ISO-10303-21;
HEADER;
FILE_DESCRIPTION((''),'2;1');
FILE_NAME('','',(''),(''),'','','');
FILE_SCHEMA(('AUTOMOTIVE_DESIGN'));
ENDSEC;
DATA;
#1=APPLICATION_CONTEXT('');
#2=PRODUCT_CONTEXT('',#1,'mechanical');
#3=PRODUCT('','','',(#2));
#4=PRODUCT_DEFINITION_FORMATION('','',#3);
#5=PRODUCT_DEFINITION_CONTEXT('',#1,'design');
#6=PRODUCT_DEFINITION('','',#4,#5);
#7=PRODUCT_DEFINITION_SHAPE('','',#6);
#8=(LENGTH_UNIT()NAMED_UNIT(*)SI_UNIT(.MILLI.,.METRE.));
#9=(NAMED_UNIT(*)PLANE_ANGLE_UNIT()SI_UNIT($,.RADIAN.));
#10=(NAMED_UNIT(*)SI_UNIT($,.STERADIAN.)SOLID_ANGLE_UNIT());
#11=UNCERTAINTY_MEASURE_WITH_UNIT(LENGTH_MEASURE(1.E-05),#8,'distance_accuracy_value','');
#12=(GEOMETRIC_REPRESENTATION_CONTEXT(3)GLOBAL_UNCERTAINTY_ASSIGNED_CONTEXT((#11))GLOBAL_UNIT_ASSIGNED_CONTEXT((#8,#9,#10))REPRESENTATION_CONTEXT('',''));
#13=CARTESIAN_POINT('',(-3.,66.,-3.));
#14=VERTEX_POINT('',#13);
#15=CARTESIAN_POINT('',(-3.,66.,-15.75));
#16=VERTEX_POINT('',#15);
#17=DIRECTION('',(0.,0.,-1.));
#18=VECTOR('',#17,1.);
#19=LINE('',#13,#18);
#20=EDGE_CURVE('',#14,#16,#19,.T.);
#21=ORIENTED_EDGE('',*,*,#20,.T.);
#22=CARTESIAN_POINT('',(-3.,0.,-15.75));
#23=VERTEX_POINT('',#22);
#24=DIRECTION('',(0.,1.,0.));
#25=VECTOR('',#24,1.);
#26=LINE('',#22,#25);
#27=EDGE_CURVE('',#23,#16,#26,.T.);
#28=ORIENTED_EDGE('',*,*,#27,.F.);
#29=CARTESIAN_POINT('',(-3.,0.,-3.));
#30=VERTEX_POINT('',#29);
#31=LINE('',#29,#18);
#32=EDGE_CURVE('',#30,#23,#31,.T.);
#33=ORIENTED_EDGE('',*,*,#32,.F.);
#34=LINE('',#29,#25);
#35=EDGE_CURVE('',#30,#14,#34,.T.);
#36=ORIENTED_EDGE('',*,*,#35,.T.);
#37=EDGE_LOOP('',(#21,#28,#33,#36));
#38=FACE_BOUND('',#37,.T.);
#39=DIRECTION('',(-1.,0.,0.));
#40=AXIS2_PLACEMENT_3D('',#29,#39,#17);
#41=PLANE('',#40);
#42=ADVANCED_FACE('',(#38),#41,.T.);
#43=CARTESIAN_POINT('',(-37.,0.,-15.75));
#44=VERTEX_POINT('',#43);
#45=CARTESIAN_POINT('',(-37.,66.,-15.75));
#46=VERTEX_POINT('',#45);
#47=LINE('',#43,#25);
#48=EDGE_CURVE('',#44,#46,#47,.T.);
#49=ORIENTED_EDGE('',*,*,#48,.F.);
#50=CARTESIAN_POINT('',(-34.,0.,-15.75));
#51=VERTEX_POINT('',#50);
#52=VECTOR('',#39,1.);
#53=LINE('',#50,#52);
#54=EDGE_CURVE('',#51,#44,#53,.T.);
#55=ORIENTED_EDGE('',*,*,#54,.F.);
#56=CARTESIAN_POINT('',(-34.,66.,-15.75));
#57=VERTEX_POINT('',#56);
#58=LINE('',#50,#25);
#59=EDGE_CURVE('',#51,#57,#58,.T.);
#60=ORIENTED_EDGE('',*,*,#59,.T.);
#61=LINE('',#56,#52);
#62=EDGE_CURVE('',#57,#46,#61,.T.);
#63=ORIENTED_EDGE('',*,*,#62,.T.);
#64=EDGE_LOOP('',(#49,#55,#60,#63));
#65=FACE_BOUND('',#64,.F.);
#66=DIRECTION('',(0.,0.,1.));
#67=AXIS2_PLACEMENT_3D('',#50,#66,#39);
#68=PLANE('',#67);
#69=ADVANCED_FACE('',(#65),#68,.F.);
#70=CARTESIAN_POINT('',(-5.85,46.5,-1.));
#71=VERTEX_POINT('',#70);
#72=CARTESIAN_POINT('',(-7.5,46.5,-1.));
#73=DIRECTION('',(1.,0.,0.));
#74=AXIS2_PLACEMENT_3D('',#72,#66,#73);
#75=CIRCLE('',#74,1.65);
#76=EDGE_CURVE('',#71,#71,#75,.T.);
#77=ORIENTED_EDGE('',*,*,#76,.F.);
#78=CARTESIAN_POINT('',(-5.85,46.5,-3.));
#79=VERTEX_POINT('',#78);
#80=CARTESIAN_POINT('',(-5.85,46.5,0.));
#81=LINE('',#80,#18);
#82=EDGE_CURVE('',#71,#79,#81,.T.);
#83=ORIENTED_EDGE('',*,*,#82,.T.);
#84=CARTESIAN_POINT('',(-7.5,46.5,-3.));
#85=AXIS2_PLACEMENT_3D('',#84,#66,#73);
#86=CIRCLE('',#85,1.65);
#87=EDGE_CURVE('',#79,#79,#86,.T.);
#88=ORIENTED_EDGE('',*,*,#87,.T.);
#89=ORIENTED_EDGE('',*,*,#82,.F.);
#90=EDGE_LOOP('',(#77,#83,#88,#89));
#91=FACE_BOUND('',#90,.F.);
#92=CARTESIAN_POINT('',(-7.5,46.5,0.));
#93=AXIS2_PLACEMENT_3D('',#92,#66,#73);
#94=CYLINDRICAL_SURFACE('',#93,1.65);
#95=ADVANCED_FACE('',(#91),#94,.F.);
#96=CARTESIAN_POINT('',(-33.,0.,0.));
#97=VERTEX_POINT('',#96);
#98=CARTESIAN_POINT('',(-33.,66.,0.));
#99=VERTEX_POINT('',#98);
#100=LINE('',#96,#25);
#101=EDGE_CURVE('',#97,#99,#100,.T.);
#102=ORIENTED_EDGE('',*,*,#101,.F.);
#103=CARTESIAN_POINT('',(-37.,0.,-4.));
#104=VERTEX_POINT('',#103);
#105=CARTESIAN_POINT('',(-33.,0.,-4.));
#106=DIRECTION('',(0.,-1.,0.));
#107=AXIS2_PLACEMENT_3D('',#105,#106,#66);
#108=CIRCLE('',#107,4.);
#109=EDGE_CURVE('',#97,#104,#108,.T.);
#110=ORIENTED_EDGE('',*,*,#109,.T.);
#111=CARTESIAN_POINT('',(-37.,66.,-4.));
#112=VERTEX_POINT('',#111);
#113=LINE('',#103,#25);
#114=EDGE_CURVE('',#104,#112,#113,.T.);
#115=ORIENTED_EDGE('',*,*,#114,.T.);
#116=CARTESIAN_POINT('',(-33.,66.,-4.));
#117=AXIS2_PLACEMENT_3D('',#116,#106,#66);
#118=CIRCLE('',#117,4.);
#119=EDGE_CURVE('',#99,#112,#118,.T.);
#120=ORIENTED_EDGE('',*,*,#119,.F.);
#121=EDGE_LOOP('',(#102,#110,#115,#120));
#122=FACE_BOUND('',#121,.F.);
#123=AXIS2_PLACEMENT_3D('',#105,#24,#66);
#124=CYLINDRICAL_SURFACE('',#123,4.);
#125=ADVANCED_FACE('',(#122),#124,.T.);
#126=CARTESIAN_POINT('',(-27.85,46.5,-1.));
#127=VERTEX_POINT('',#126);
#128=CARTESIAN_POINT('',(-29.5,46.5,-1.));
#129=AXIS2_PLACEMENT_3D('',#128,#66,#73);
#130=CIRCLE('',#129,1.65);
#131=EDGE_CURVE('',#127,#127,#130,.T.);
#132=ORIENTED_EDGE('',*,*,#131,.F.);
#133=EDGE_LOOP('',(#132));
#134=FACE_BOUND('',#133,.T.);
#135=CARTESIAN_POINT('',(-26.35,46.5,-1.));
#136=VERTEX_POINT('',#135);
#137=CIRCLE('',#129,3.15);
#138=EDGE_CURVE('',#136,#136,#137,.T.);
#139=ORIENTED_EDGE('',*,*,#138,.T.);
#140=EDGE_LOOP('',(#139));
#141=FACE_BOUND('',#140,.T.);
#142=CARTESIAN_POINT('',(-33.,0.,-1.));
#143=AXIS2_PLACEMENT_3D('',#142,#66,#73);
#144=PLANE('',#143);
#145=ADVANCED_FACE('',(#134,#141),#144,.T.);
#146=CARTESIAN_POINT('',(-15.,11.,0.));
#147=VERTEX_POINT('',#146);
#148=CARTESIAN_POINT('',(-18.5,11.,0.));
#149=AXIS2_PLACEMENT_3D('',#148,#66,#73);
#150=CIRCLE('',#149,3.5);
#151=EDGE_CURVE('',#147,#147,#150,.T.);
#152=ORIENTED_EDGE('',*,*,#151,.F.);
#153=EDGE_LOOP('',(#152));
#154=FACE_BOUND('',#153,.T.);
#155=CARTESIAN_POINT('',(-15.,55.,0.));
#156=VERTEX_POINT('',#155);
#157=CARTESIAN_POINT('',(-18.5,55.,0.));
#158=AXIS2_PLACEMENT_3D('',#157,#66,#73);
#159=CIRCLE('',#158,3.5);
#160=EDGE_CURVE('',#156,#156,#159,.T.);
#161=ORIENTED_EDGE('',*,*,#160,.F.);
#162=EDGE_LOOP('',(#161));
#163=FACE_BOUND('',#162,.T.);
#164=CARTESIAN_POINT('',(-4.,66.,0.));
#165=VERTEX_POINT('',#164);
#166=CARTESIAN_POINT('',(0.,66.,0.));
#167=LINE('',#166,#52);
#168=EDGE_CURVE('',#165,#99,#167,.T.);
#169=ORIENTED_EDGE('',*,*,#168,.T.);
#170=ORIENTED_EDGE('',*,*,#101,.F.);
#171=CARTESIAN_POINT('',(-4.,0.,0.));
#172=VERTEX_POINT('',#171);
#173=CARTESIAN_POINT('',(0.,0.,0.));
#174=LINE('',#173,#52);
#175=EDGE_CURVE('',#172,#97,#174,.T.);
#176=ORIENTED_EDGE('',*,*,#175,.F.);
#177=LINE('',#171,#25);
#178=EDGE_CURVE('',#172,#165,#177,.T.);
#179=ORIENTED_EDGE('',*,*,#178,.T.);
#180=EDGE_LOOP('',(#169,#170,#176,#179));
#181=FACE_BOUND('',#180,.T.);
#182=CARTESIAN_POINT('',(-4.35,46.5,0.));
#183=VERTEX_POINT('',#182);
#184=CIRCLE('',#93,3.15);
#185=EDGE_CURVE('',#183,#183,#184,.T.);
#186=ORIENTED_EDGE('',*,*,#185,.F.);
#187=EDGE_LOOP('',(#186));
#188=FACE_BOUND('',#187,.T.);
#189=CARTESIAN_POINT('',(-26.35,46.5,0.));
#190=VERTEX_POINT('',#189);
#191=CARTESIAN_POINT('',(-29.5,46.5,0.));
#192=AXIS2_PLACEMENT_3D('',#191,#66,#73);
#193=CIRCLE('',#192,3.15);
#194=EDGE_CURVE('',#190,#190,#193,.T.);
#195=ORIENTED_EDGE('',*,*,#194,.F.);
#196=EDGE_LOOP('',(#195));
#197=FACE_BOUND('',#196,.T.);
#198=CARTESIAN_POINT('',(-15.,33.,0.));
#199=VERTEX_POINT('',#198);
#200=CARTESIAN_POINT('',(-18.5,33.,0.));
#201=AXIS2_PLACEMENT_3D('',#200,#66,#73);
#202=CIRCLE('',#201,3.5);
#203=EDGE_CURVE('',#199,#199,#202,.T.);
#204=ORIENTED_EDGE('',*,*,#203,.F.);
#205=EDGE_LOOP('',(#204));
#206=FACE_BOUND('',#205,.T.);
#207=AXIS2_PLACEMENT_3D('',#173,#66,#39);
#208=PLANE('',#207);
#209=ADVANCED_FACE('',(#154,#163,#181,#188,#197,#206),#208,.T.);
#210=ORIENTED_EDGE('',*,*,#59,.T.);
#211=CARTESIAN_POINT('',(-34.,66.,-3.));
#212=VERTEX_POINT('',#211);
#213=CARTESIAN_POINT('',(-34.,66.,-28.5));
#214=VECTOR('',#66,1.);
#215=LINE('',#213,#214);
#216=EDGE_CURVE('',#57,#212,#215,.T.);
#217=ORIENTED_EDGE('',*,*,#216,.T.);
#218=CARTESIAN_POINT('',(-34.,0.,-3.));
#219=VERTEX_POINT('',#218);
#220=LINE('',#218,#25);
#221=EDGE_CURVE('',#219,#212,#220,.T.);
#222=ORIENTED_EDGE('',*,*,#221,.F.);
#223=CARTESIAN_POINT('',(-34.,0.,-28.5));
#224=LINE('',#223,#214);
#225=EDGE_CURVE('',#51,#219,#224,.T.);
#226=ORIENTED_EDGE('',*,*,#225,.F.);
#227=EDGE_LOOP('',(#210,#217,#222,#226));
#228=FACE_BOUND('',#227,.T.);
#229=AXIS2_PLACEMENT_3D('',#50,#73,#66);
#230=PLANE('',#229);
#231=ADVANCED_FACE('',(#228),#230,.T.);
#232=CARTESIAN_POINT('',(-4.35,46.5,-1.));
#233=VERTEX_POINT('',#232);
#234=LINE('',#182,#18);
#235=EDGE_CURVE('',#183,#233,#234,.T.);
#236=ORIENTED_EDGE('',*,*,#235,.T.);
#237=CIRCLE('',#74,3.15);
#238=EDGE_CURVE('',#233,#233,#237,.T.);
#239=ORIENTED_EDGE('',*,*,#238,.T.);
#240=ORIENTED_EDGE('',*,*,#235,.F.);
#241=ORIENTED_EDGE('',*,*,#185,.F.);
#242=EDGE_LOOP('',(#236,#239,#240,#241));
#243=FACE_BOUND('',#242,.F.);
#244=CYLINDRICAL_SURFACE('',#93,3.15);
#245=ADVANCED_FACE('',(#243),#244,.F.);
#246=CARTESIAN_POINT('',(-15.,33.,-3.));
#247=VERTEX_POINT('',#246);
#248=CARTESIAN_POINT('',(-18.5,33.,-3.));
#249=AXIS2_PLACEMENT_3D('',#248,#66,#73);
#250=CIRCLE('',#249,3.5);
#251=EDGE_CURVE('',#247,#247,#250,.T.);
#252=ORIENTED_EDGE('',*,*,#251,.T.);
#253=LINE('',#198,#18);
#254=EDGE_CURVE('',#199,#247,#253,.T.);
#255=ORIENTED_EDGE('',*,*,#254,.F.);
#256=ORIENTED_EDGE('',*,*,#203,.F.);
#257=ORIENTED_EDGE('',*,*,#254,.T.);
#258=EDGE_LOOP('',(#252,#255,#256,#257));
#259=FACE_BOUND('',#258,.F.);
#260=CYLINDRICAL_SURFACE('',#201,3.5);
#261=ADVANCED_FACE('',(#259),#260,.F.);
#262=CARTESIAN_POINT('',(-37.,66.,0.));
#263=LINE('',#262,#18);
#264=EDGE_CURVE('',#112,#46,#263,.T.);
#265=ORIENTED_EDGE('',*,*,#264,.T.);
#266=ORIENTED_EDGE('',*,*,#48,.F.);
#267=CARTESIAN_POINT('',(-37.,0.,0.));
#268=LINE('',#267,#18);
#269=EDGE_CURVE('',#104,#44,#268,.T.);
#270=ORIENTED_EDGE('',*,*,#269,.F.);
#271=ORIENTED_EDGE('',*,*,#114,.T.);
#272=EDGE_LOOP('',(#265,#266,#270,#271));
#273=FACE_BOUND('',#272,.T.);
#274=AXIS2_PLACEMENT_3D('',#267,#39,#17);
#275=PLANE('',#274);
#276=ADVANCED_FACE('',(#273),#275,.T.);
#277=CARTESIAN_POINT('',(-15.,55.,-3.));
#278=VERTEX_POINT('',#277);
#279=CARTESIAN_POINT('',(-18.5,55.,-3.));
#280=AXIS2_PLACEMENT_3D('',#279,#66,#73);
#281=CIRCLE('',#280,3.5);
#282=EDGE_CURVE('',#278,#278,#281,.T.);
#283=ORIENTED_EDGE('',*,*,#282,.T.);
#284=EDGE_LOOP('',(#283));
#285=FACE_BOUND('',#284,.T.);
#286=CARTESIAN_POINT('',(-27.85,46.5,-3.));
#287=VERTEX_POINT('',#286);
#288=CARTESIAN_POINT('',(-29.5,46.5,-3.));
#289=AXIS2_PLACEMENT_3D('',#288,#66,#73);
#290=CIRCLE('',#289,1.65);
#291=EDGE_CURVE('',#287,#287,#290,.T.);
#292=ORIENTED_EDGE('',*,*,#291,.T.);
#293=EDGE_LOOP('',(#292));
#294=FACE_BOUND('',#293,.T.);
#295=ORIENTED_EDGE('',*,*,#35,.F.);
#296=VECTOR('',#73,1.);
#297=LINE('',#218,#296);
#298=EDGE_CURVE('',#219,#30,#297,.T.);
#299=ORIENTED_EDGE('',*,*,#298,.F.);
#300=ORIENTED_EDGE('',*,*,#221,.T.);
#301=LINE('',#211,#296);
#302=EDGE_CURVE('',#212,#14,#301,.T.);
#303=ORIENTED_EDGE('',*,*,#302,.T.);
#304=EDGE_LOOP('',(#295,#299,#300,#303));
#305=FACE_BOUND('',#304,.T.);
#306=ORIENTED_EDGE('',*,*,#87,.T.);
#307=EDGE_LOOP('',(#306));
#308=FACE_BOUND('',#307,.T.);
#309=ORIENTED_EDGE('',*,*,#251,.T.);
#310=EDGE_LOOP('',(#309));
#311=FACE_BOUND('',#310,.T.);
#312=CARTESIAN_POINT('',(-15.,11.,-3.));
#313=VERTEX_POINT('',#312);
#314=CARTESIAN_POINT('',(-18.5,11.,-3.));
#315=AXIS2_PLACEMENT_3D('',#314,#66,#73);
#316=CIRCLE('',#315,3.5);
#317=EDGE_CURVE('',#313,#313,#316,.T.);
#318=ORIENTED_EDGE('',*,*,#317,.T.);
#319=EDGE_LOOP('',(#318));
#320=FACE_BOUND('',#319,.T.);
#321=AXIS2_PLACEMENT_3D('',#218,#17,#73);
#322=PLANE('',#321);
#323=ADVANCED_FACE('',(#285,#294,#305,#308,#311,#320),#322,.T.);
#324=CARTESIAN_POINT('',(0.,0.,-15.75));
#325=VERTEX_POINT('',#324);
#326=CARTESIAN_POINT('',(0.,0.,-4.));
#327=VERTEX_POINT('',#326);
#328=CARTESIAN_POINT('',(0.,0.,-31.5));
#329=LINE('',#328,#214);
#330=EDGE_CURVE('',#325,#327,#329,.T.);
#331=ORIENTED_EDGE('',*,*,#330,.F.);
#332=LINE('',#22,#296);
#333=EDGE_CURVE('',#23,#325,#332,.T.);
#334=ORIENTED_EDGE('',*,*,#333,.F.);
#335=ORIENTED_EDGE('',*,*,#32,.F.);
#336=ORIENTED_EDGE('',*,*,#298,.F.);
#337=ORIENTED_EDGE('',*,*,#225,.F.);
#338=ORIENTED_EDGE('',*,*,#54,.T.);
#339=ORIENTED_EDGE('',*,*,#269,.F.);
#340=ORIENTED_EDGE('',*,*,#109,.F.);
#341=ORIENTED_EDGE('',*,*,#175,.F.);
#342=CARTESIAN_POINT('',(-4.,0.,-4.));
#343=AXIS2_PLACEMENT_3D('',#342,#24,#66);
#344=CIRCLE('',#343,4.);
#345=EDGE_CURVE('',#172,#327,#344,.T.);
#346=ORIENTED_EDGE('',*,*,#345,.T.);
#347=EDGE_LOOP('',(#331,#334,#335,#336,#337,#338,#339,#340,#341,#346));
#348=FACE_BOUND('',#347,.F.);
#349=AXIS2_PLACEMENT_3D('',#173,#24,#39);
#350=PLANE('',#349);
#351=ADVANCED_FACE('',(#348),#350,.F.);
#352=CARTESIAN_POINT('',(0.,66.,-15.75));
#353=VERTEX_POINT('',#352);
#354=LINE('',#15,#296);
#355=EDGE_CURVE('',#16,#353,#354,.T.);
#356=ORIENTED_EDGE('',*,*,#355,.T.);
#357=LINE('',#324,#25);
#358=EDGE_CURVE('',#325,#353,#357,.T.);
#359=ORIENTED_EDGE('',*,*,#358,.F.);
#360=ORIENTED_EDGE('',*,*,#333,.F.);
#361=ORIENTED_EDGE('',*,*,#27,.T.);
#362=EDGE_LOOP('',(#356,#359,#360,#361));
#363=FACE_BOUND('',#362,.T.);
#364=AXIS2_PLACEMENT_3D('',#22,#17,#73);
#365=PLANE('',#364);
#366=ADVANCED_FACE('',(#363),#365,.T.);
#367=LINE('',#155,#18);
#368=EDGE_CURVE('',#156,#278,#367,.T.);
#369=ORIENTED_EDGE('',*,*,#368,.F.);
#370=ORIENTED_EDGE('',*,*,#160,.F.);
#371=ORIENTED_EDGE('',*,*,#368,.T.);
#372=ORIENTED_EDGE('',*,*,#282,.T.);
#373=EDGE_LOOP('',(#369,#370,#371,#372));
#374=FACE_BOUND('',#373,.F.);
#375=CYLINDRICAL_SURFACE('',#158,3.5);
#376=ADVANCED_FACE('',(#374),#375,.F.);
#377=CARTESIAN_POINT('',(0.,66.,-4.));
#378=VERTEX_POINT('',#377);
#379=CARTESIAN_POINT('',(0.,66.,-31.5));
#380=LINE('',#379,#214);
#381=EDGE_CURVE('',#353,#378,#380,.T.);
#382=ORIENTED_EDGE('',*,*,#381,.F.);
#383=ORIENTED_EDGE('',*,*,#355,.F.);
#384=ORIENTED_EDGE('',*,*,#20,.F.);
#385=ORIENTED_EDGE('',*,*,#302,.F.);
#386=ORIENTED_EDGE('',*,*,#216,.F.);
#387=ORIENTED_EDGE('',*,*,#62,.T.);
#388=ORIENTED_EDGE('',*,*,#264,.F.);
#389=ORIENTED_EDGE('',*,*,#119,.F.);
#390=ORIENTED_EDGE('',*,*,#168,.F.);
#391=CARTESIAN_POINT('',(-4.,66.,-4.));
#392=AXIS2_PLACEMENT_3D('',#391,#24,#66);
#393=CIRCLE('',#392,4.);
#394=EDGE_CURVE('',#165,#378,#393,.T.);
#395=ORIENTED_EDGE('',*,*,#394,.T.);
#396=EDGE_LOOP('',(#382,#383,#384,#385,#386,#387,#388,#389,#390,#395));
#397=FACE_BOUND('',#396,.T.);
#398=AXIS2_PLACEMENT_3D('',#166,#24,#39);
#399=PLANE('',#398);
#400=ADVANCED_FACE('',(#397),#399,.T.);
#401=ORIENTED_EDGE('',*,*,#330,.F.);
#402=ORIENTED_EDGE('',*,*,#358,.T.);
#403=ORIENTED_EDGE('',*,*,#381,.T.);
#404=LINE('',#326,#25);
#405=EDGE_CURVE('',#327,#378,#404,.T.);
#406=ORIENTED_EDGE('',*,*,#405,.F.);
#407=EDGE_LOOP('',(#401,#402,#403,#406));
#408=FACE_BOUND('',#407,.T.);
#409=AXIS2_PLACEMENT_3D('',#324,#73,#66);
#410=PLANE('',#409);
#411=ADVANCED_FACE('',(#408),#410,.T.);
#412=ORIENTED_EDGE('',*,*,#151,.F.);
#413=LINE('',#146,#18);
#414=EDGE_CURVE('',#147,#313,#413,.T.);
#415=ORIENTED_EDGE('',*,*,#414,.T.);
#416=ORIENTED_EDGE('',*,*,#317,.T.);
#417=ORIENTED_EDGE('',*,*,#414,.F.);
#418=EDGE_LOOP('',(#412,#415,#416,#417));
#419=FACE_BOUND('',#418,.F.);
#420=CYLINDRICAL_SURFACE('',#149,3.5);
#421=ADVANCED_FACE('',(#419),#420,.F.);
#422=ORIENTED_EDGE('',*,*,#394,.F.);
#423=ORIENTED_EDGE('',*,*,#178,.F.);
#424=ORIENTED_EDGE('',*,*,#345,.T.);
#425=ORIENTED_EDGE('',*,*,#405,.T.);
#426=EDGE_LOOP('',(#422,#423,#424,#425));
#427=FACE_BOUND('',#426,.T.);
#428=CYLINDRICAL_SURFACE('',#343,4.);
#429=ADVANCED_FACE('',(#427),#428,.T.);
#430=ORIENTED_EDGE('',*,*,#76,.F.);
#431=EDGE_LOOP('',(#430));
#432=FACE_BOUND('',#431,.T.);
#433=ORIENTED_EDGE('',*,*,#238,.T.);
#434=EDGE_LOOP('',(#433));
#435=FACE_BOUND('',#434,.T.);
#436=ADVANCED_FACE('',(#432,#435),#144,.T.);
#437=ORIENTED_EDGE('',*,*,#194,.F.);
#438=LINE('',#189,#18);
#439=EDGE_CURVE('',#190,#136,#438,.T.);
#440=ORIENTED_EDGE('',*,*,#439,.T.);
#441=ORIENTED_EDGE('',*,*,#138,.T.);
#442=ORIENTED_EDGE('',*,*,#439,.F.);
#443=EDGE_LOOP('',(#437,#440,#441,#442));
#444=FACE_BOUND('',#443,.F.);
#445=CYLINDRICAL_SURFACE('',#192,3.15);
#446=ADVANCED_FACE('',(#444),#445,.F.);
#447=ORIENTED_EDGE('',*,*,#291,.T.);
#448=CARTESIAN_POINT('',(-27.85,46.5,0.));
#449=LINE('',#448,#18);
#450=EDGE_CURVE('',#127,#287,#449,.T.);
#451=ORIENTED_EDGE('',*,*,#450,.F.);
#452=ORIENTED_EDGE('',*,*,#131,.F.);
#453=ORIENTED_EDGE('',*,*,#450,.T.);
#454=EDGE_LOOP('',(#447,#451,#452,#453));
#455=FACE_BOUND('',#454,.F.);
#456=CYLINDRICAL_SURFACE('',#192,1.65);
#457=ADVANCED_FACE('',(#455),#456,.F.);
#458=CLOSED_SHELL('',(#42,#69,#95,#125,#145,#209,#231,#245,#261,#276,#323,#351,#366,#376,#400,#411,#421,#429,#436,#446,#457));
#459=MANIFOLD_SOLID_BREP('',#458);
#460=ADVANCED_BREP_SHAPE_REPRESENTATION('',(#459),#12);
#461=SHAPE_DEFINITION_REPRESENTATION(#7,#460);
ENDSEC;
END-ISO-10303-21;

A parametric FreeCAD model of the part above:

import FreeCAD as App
import Part
import Sketcher
from FreeCAD import Vector
Q = App.Units.Quantity


def edges_at(feature, points):
    """Names of the edges that pass closest to the given points."""
    edges = feature.Shape.Edges
    near = lambda p: min(range(len(edges)), key=lambda i: edges[i].distToShape(Part.Vertex(*p))[0])
    return sorted({f"Edge{near(p) + 1}" for p in points})


def add_polygon(sketch, points):
    """Adds a closed chain of lines whose ends are joined by coincident constraints."""
    first, n = sketch.GeometryCount, len(points)
    for a, b in zip(points, points[1:] + points[:1]):
        sketch.addGeometry(Part.LineSegment(App.Vector(*a, 0), App.Vector(*b, 0)), False)
    for i in range(n):
        sketch.addConstraint(Sketcher.Constraint("Coincident", first + i, 2, first + (i + 1) % n, 1))

doc = App.newDocument("Part")
body = doc.addObject("PartDesign::Body", "Body")

sketch1 = body.newObject("Sketcher::SketchObject", "Sketch")
sketch1.AttachmentSupport = (doc.getObject("XZ_Plane"), [""])
sketch1.MapMode = "FlatFace"
add_polygon(sketch1, [(-37, 0), (0, 0), (0, -15.8), (-3, -15.8), (-3, -3), (-34, -3), (-34, -15.8), (-37, -15.8)])
sketch1.addConstraint([
    Sketcher.Constraint("Horizontal", 0),
    Sketcher.Constraint("Vertical", 1),
    Sketcher.Constraint("Horizontal", 2),
    Sketcher.Constraint("Vertical", 3),
    Sketcher.Constraint("Horizontal", 4),
    Sketcher.Constraint("Vertical", 5),
    Sketcher.Constraint("Horizontal", 6),
    Sketcher.Constraint("Vertical", 7),
    Sketcher.Constraint("Coincident", 0, 2, -1, 1),
    Sketcher.Constraint("Horizontal", 2, 2, 5, 2),
    Sketcher.Constraint("Equal", 2, 6),
    Sketcher.Constraint("DistanceX", 2, 2, 2, 1, Q("3 mm")),
    Sketcher.Constraint("DistanceX", 4, 2, 4, 1, Q("31 mm")),
    Sketcher.Constraint("DistanceY", 3, 2, -1, 1, Q("3 mm")),
    Sketcher.Constraint("DistanceY", 1, 2, 1, 1, Q("15.75 mm")),
])
pad1 = body.newObject("PartDesign::Pad", "Pad")
pad1.Profile = sketch1
pad1.Length = 66
pad1.Reversed = True

sketch2 = body.newObject("Sketcher::SketchObject", "Sketch001")
sketch2.AttachmentSupport = (doc.getObject("XY_Plane"), [""])
sketch2.MapMode = "FlatFace"
sketch2.addGeometry([
    Part.Circle(Vector(-29.5, 46.5, 0), Vector(0, 0, 1), 1.6),
    Part.Circle(Vector(-7.5, 46.5, 0), Vector(0, 0, 1), 1.6),
], False)
sketch2.addConstraint([
    Sketcher.Constraint("Equal", 0, 1),
    Sketcher.Constraint("Horizontal", 0, 3, 1, 3),
    Sketcher.Constraint("Diameter", 0, Q("3.3 mm")),
    Sketcher.Constraint("DistanceX", 0, 3, 1, 3, Q("22 mm")),
    Sketcher.Constraint("DistanceY", -1, 1, 0, 3, Q("46.5 mm")),
    Sketcher.Constraint("DistanceX", 0, 3, -1, 1, Q("29.5 mm")),
])
pocket1 = body.newObject("PartDesign::Pocket", "Pocket")
pocket1.Profile = sketch2
pocket1.Type = "ThroughAll"

sketch3 = body.newObject("Sketcher::SketchObject", "Sketch002")
sketch3.AttachmentSupport = (doc.getObject("XY_Plane"), [""])
sketch3.MapMode = "FlatFace"
sketch3.addGeometry([
    Part.Circle(Vector(-29.5, 46.5, 0), Vector(0, 0, 1), 3.1),
    Part.Circle(Vector(-7.5, 46.5, 0), Vector(0, 0, 1), 3.1),
], False)
sketch3.addConstraint([
    Sketcher.Constraint("Equal", 0, 1),
    Sketcher.Constraint("Horizontal", 0, 3, 1, 3),
    Sketcher.Constraint("Diameter", 0, Q("6.3 mm")),
    Sketcher.Constraint("DistanceX", 0, 3, 1, 3, Q("22 mm")),
    Sketcher.Constraint("DistanceX", 0, 3, -1, 1, Q("29.5 mm")),
    Sketcher.Constraint("DistanceY", -1, 1, 0, 3, Q("46.5 mm")),
])
pocket2 = body.newObject("PartDesign::Pocket", "Pocket001")
pocket2.Profile = sketch3
pocket2.Length = 1

sketch4 = body.newObject("Sketcher::SketchObject", "Sketch003")
sketch4.AttachmentSupport = (doc.getObject("XY_Plane"), [""])
sketch4.MapMode = "FlatFace"
sketch4.addGeometry([
    Part.Circle(Vector(-18.5, 11, 0), Vector(0, 0, 1), 3.5),
    Part.Circle(Vector(-18.5, 33, 0), Vector(0, 0, 1), 3.5),
    Part.Circle(Vector(-18.5, 55, 0), Vector(0, 0, 1), 3.5),
], False)
sketch4.addConstraint([
    Sketcher.Constraint("Equal", 0, 1),
    Sketcher.Constraint("Equal", 1, 2),
    Sketcher.Constraint("Vertical", 0, 3, 1, 3),
    Sketcher.Constraint("Vertical", 1, 3, 2, 3),
    Sketcher.Constraint("Diameter", 0, Q("7 mm")),
    Sketcher.Constraint("DistanceY", -1, 1, 0, 3, Q("11 mm")),
    Sketcher.Constraint("DistanceY", 0, 3, 1, 3, Q("22 mm")),
    Sketcher.Constraint("DistanceY", 1, 3, 2, 3, Q("22 mm")),
    Sketcher.Constraint("DistanceX", 0, 3, -1, 1, Q("18.5 mm")),
])
pocket3 = body.newObject("PartDesign::Pocket", "Pocket002")
pocket3.Profile = sketch4
pocket3.Type = "ThroughAll"
doc.recompute()

fillet = body.newObject("PartDesign::Fillet", "Fillet")
fillet.Base = (pocket3, edges_at(pocket3, [(0, 33, 0), (-37, 33, 0)]))
fillet.Radius = 4

doc.recompute()
